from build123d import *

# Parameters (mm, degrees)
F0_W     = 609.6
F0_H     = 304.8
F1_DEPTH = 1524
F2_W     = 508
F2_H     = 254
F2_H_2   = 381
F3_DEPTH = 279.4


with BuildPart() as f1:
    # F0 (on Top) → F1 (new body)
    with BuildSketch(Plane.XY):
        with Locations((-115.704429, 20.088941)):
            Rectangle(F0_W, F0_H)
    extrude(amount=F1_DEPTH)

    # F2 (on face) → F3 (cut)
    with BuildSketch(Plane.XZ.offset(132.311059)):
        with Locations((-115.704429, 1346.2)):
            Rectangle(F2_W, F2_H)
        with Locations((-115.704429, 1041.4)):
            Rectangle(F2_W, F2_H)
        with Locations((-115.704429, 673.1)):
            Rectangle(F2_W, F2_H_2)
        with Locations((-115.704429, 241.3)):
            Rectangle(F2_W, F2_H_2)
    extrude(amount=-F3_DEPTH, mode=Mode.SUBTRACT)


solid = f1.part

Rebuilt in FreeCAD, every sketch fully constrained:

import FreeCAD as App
import Part
import Sketcher
Q = App.Units.Quantity


def add_polygon(sketch, points):
    """Adds a closed chain of lines whose ends are joined by coincident constraints."""
    first, n = sketch.GeometryCount, len(points)
    for a, b in zip(points, points[1:] + points[:1]):
        sketch.addGeometry(Part.LineSegment(App.Vector(*a, 0), App.Vector(*b, 0)), False)
    for i in range(n):
        sketch.addConstraint(Sketcher.Constraint("Coincident", first + i, 2, first + (i + 1) % n, 1))

doc = App.newDocument("Part")
params = doc.addObject("Spreadsheet::Sheet", "Params")
for row, (alias, value) in enumerate([
    ("sketch1_width", "24 in"),
    ("sketch1_height", "12 in"),
    ("pad1_length", "60 in"),
    ("sketch2_width", "20 in"),
    ("sketch2_height", "10 in"),
    ("sketch2_height2", "15 in"),
    ("pocket1_length", "11 in"),
], start=1):
    params.set(f"A{row}", alias)
    params.set(f"B{row}", "=" + value)
    params.setAlias(f"B{row}", alias)

body = doc.addObject("PartDesign::Body", "Body")

# Sketch on XY plane
sketch1 = doc.addObject("Sketcher::SketchObject", "Sketch")
body.addObject(sketch1)
sketch1.AttachmentSupport = (doc.XY_Plane, [""])
sketch1.MapMode = "FlatFace"
add_polygon(sketch1, [(-420.504429, 172.488941), (-420.504429, -132.311059), (189.095571, -132.311059), (189.095571, 172.488941)])  # lines 0-3
sketch1.addConstraint(Sketcher.Constraint("Vertical", 0))
sketch1.addConstraint(Sketcher.Constraint("Horizontal", 1))
sketch1.addConstraint(Sketcher.Constraint("Vertical", 2))
sketch1.addConstraint(Sketcher.Constraint("Horizontal", 3))
sketch1.addConstraint(Sketcher.Constraint("DistanceX", 1, 1, 1, 2, Q("24 in")))
sketch1.addConstraint(Sketcher.Constraint("DistanceY", 0, 2, 0, 1, Q("12 in")))
sketch1.addConstraint(Sketcher.Constraint("DistanceX", 0, 2, -1, 1, Q("420.504429 mm")))
sketch1.addConstraint(Sketcher.Constraint("DistanceY", 0, 2, -1, 1, Q("132.311059 mm")))
sketch1.setExpression("Constraints[8]", "Params.sketch1_width")
sketch1.setExpression("Constraints[9]", "Params.sketch1_height")
pad1 = doc.addObject("PartDesign::Pad", "Pad")
body.addObject(pad1)
pad1.Profile = sketch1
pad1.setExpression("Length", "Params.pad1_length")

# Sketch on XZ plane
sketch2 = doc.addObject("Sketcher::SketchObject", "Sketch001")
body.addObject(sketch2)
sketch2.AttachmentSupport = (doc.XZ_Plane, [""])
sketch2.MapMode = "FlatFace"
sketch2.AttachmentOffset = App.Placement(App.Vector(0, 0, 132.311059), App.Rotation())
add_polygon(sketch2, [(-369.704429, 1473.2), (-369.704429, 1219.2), (138.295571, 1219.2), (138.295571, 1473.2)])  # lines 0-3
add_polygon(sketch2, [(-369.704429, 1168.4), (-369.704429, 914.4), (138.295571, 914.4), (138.295571, 1168.4)])  # lines 4-7
add_polygon(sketch2, [(-369.704429, 863.6), (-369.704429, 482.6), (138.295571, 482.6), (138.295571, 863.6)])  # lines 8-11
add_polygon(sketch2, [(-369.704429, 431.8), (-369.704429, 50.8), (138.295571, 50.8), (138.295571, 431.8)])  # lines 12-15
sketch2.addConstraint(Sketcher.Constraint("Vertical", 0))
sketch2.addConstraint(Sketcher.Constraint("Horizontal", 1))
sketch2.addConstraint(Sketcher.Constraint("Vertical", 2))
sketch2.addConstraint(Sketcher.Constraint("Horizontal", 3))
sketch2.addConstraint(Sketcher.Constraint("Vertical", 4))
sketch2.addConstraint(Sketcher.Constraint("Horizontal", 5))
sketch2.addConstraint(Sketcher.Constraint("Vertical", 6))
sketch2.addConstraint(Sketcher.Constraint("Horizontal", 7))
sketch2.addConstraint(Sketcher.Constraint("Vertical", 8))
sketch2.addConstraint(Sketcher.Constraint("Horizontal", 9))
sketch2.addConstraint(Sketcher.Constraint("Vertical", 10))
sketch2.addConstraint(Sketcher.Constraint("Horizontal", 11))
sketch2.addConstraint(Sketcher.Constraint("Vertical", 12))
sketch2.addConstraint(Sketcher.Constraint("Horizontal", 13))
sketch2.addConstraint(Sketcher.Constraint("Vertical", 14))
sketch2.addConstraint(Sketcher.Constraint("Horizontal", 15))
sketch2.addConstraint(Sketcher.Constraint("Vertical", 3, 2, 4, 2))
sketch2.addConstraint(Sketcher.Constraint("Vertical", 2, 2, 5, 2))
sketch2.addConstraint(Sketcher.Constraint("Vertical", 7, 2, 8, 2))
sketch2.addConstraint(Sketcher.Constraint("Vertical", 6, 2, 9, 2))
sketch2.addConstraint(Sketcher.Constraint("Vertical", 11, 2, 12, 2))
sketch2.addConstraint(Sketcher.Constraint("Vertical", 10, 2, 13, 2))
sketch2.addConstraint(Sketcher.Constraint("Equal", 2, 4))
sketch2.addConstraint(Sketcher.Constraint("Equal", 10, 12))
sketch2.addConstraint(Sketcher.Constraint("DistanceX", 1, 1, 1, 2, Q("20 in")))
sketch2.addConstraint(Sketcher.Constraint("DistanceY", 0, 2, 0, 1, Q("10 in")))
sketch2.addConstraint(Sketcher.Constraint("DistanceY", 8, 2, 8, 1, Q("15 in")))
sketch2.addConstraint(Sketcher.Constraint("DistanceY", -1, 1, 0, 2, Q("48 in")))
sketch2.addConstraint(Sketcher.Constraint("DistanceY", -1, 1, 4, 2, Q("36 in")))
sketch2.addConstraint(Sketcher.Constraint("DistanceY", -1, 1, 8, 2, Q("19 in")))
sketch2.addConstraint(Sketcher.Constraint("DistanceY", -1, 1, 12, 2, Q("2 in")))
sketch2.addConstraint(Sketcher.Constraint("DistanceX", 0, 2, -1, 1, Q("369.704429 mm")))
sketch2.setExpression("Constraints[40]", "Params.sketch2_width")
sketch2.setExpression("Constraints[41]", "Params.sketch2_height")
sketch2.setExpression("Constraints[42]", "Params.sketch2_height2")
pocket1 = doc.addObject("PartDesign::Pocket", "Pocket")
body.addObject(pocket1)
pocket1.Profile = sketch2
pocket1.setExpression("Length", "Params.pocket1_length")

doc.recompute()
